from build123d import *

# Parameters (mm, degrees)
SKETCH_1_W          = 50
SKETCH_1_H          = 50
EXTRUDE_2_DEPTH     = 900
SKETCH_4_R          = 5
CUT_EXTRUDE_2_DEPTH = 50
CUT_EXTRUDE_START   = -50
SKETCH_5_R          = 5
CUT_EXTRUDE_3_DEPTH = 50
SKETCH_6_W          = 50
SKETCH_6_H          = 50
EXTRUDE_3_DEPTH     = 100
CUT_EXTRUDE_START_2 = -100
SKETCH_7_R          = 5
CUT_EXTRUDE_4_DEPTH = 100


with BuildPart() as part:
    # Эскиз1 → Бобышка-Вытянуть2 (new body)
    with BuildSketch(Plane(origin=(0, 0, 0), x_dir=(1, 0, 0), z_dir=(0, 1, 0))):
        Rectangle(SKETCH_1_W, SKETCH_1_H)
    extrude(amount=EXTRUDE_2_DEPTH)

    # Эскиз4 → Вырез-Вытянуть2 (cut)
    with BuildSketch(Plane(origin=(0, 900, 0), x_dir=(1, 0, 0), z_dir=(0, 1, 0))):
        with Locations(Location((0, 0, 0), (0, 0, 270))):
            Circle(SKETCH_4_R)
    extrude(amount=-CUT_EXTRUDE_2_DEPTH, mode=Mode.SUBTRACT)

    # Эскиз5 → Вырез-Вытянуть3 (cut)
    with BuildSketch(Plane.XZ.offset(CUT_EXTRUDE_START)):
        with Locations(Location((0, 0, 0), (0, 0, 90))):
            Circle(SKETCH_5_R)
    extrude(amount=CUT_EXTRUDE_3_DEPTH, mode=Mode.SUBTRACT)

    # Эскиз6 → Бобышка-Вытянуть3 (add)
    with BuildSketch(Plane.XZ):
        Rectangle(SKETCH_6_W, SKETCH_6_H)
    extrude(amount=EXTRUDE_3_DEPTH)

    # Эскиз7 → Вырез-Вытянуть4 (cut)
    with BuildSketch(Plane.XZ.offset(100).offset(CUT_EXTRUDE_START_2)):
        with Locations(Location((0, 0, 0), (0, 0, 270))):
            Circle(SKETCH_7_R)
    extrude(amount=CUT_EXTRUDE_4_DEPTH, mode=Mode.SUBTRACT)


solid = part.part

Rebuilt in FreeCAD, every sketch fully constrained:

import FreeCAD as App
import Part
import Sketcher
Q = App.Units.Quantity


def add_polygon(sketch, points):
    """Adds a closed chain of lines whose ends are joined by coincident constraints."""
    first, n = sketch.GeometryCount, len(points)
    for a, b in zip(points, points[1:] + points[:1]):
        sketch.addGeometry(Part.LineSegment(App.Vector(*a, 0), App.Vector(*b, 0)), False)
    for i in range(n):
        sketch.addConstraint(Sketcher.Constraint("Coincident", first + i, 2, first + (i + 1) % n, 1))

doc = App.newDocument("Part")
params = doc.addObject("Spreadsheet::Sheet", "Params")
for row, (alias, value) in enumerate([
    ("sketch1_width", "50 mm"),
    ("pad1_length", "900 mm"),
    ("sketch2_diameter", "10 mm"),
    ("pocket1_length", "50 mm"),
    ("sketch3_diameter", "10 mm"),
    ("pocket2_length", "50 mm"),
    ("sketch4_width", "50 mm"),
    ("pad2_length", "100 mm"),
    ("sketch5_diameter", "10 mm"),
    ("pocket3_length", "100 mm"),
], start=1):
    params.set(f"A{row}", alias)
    params.set(f"B{row}", "=" + value)
    params.setAlias(f"B{row}", alias)

body = doc.addObject("PartDesign::Body", "Body")

# Sketch on XZ plane
sketch1 = doc.addObject("Sketcher::SketchObject", "Sketch")
body.addObject(sketch1)
sketch1.AttachmentSupport = (doc.XZ_Plane, [""])
sketch1.MapMode = "FlatFace"
add_polygon(sketch1, [(-25, -25), (-25, 25), (25, 25), (25, -25)])  # lines 0-3
sketch1.addConstraint([
    Sketcher.Constraint("Vertical", 0),
    Sketcher.Constraint("Horizontal", 1),
    Sketcher.Constraint("Vertical", 2),
    Sketcher.Constraint("Horizontal", 3),
    Sketcher.Constraint("Symmetric", 0, 2, 2, 2, -1, 1),
    Sketcher.Constraint("Equal", 3, 0),
    Sketcher.Constraint("DistanceX", 1, 1, 1, 2, Q("50 mm")),
])
sketch1.setExpression("Constraints[10]", "Params.sketch1_width")
pad1 = doc.addObject("PartDesign::Pad", "Pad")
body.addObject(pad1)
pad1.Profile = sketch1
pad1.setExpression("Length", "Params.pad1_length")
pad1.Reversed = True

# Sketch on XZ plane
sketch2 = doc.addObject("Sketcher::SketchObject", "Sketch001")
body.addObject(sketch2)
sketch2.AttachmentSupport = (doc.XZ_Plane, [""])
sketch2.MapMode = "FlatFace"
sketch2.AttachmentOffset = App.Placement(App.Vector(0, 0, -900), App.Rotation())
sketch2.addGeometry(Part.Circle(App.Vector(0, 0, 0), App.Vector(0, 0, 1), 5), False)
sketch2.addConstraint([
    Sketcher.Constraint("Coincident", 0, 3, -1, 1),
    Sketcher.Constraint("Diameter", 0, Q("10 mm")),
])
sketch2.setExpression("Constraints[1]", "Params.sketch2_diameter")
pocket1 = doc.addObject("PartDesign::Pocket", "Pocket")
body.addObject(pocket1)
pocket1.Profile = sketch2
pocket1.setExpression("Length", "Params.pocket1_length")
pocket1.Reversed = True

# Sketch on XZ plane
sketch3 = doc.addObject("Sketcher::SketchObject", "Sketch002")
body.addObject(sketch3)
sketch3.AttachmentSupport = (doc.XZ_Plane, [""])
sketch3.MapMode = "FlatFace"
sketch3.AttachmentOffset = App.Placement(App.Vector(0, 0, -50), App.Rotation())
sketch3.addGeometry(Part.Circle(App.Vector(0, 0, 0), App.Vector(0, 0, 1), 5), False)
sketch3.addConstraint([
    Sketcher.Constraint("Coincident", 0, 3, -1, 1),
    Sketcher.Constraint("Diameter", 0, Q("10 mm")),
])
sketch3.setExpression("Constraints[1]", "Params.sketch3_diameter")
pocket2 = doc.addObject("PartDesign::Pocket", "Pocket001")
body.addObject(pocket2)
pocket2.Profile = sketch3
pocket2.setExpression("Length", "Params.pocket2_length")
pocket2.Reversed = True

# Sketch on XZ plane
sketch4 = doc.addObject("Sketcher::SketchObject", "Sketch003")
body.addObject(sketch4)
sketch4.AttachmentSupport = (doc.XZ_Plane, [""])
sketch4.MapMode = "FlatFace"
add_polygon(sketch4, [(-25, 25), (-25, -25), (25, -25), (25, 25)])  # lines 0-3
sketch4.addConstraint([
    Sketcher.Constraint("Vertical", 0),
    Sketcher.Constraint("Horizontal", 1),
    Sketcher.Constraint("Vertical", 2),
    Sketcher.Constraint("Horizontal", 3),
    Sketcher.Constraint("Symmetric", 0, 2, 2, 2, -1, 1),
    Sketcher.Constraint("Equal", 3, 0),
    Sketcher.Constraint("DistanceX", 1, 1, 1, 2, Q("50 mm")),
])
sketch4.setExpression("Constraints[10]", "Params.sketch4_width")
pad2 = doc.addObject("PartDesign::Pad", "Pad001")
body.addObject(pad2)
pad2.Profile = sketch4
pad2.setExpression("Length", "Params.pad2_length")

# Sketch on XZ plane
sketch5 = doc.addObject("Sketcher::SketchObject", "Sketch004")
body.addObject(sketch5)
sketch5.AttachmentSupport = (doc.XZ_Plane, [""])
sketch5.MapMode = "FlatFace"
sketch5.addGeometry(Part.Circle(App.Vector(0, 0, 0), App.Vector(0, 0, 1), 5), False)
sketch5.addConstraint([
    Sketcher.Constraint("Coincident", 0, 3, -1, 1),
    Sketcher.Constraint("Diameter", 0, Q("10 mm")),
])
sketch5.setExpression("Constraints[1]", "Params.sketch5_diameter")
pocket3 = doc.addObject("PartDesign::Pocket", "Pocket002")
body.addObject(pocket3)
pocket3.Profile = sketch5
pocket3.setExpression("Length", "Params.pocket3_length")
pocket3.Reversed = True

doc.recompute()
